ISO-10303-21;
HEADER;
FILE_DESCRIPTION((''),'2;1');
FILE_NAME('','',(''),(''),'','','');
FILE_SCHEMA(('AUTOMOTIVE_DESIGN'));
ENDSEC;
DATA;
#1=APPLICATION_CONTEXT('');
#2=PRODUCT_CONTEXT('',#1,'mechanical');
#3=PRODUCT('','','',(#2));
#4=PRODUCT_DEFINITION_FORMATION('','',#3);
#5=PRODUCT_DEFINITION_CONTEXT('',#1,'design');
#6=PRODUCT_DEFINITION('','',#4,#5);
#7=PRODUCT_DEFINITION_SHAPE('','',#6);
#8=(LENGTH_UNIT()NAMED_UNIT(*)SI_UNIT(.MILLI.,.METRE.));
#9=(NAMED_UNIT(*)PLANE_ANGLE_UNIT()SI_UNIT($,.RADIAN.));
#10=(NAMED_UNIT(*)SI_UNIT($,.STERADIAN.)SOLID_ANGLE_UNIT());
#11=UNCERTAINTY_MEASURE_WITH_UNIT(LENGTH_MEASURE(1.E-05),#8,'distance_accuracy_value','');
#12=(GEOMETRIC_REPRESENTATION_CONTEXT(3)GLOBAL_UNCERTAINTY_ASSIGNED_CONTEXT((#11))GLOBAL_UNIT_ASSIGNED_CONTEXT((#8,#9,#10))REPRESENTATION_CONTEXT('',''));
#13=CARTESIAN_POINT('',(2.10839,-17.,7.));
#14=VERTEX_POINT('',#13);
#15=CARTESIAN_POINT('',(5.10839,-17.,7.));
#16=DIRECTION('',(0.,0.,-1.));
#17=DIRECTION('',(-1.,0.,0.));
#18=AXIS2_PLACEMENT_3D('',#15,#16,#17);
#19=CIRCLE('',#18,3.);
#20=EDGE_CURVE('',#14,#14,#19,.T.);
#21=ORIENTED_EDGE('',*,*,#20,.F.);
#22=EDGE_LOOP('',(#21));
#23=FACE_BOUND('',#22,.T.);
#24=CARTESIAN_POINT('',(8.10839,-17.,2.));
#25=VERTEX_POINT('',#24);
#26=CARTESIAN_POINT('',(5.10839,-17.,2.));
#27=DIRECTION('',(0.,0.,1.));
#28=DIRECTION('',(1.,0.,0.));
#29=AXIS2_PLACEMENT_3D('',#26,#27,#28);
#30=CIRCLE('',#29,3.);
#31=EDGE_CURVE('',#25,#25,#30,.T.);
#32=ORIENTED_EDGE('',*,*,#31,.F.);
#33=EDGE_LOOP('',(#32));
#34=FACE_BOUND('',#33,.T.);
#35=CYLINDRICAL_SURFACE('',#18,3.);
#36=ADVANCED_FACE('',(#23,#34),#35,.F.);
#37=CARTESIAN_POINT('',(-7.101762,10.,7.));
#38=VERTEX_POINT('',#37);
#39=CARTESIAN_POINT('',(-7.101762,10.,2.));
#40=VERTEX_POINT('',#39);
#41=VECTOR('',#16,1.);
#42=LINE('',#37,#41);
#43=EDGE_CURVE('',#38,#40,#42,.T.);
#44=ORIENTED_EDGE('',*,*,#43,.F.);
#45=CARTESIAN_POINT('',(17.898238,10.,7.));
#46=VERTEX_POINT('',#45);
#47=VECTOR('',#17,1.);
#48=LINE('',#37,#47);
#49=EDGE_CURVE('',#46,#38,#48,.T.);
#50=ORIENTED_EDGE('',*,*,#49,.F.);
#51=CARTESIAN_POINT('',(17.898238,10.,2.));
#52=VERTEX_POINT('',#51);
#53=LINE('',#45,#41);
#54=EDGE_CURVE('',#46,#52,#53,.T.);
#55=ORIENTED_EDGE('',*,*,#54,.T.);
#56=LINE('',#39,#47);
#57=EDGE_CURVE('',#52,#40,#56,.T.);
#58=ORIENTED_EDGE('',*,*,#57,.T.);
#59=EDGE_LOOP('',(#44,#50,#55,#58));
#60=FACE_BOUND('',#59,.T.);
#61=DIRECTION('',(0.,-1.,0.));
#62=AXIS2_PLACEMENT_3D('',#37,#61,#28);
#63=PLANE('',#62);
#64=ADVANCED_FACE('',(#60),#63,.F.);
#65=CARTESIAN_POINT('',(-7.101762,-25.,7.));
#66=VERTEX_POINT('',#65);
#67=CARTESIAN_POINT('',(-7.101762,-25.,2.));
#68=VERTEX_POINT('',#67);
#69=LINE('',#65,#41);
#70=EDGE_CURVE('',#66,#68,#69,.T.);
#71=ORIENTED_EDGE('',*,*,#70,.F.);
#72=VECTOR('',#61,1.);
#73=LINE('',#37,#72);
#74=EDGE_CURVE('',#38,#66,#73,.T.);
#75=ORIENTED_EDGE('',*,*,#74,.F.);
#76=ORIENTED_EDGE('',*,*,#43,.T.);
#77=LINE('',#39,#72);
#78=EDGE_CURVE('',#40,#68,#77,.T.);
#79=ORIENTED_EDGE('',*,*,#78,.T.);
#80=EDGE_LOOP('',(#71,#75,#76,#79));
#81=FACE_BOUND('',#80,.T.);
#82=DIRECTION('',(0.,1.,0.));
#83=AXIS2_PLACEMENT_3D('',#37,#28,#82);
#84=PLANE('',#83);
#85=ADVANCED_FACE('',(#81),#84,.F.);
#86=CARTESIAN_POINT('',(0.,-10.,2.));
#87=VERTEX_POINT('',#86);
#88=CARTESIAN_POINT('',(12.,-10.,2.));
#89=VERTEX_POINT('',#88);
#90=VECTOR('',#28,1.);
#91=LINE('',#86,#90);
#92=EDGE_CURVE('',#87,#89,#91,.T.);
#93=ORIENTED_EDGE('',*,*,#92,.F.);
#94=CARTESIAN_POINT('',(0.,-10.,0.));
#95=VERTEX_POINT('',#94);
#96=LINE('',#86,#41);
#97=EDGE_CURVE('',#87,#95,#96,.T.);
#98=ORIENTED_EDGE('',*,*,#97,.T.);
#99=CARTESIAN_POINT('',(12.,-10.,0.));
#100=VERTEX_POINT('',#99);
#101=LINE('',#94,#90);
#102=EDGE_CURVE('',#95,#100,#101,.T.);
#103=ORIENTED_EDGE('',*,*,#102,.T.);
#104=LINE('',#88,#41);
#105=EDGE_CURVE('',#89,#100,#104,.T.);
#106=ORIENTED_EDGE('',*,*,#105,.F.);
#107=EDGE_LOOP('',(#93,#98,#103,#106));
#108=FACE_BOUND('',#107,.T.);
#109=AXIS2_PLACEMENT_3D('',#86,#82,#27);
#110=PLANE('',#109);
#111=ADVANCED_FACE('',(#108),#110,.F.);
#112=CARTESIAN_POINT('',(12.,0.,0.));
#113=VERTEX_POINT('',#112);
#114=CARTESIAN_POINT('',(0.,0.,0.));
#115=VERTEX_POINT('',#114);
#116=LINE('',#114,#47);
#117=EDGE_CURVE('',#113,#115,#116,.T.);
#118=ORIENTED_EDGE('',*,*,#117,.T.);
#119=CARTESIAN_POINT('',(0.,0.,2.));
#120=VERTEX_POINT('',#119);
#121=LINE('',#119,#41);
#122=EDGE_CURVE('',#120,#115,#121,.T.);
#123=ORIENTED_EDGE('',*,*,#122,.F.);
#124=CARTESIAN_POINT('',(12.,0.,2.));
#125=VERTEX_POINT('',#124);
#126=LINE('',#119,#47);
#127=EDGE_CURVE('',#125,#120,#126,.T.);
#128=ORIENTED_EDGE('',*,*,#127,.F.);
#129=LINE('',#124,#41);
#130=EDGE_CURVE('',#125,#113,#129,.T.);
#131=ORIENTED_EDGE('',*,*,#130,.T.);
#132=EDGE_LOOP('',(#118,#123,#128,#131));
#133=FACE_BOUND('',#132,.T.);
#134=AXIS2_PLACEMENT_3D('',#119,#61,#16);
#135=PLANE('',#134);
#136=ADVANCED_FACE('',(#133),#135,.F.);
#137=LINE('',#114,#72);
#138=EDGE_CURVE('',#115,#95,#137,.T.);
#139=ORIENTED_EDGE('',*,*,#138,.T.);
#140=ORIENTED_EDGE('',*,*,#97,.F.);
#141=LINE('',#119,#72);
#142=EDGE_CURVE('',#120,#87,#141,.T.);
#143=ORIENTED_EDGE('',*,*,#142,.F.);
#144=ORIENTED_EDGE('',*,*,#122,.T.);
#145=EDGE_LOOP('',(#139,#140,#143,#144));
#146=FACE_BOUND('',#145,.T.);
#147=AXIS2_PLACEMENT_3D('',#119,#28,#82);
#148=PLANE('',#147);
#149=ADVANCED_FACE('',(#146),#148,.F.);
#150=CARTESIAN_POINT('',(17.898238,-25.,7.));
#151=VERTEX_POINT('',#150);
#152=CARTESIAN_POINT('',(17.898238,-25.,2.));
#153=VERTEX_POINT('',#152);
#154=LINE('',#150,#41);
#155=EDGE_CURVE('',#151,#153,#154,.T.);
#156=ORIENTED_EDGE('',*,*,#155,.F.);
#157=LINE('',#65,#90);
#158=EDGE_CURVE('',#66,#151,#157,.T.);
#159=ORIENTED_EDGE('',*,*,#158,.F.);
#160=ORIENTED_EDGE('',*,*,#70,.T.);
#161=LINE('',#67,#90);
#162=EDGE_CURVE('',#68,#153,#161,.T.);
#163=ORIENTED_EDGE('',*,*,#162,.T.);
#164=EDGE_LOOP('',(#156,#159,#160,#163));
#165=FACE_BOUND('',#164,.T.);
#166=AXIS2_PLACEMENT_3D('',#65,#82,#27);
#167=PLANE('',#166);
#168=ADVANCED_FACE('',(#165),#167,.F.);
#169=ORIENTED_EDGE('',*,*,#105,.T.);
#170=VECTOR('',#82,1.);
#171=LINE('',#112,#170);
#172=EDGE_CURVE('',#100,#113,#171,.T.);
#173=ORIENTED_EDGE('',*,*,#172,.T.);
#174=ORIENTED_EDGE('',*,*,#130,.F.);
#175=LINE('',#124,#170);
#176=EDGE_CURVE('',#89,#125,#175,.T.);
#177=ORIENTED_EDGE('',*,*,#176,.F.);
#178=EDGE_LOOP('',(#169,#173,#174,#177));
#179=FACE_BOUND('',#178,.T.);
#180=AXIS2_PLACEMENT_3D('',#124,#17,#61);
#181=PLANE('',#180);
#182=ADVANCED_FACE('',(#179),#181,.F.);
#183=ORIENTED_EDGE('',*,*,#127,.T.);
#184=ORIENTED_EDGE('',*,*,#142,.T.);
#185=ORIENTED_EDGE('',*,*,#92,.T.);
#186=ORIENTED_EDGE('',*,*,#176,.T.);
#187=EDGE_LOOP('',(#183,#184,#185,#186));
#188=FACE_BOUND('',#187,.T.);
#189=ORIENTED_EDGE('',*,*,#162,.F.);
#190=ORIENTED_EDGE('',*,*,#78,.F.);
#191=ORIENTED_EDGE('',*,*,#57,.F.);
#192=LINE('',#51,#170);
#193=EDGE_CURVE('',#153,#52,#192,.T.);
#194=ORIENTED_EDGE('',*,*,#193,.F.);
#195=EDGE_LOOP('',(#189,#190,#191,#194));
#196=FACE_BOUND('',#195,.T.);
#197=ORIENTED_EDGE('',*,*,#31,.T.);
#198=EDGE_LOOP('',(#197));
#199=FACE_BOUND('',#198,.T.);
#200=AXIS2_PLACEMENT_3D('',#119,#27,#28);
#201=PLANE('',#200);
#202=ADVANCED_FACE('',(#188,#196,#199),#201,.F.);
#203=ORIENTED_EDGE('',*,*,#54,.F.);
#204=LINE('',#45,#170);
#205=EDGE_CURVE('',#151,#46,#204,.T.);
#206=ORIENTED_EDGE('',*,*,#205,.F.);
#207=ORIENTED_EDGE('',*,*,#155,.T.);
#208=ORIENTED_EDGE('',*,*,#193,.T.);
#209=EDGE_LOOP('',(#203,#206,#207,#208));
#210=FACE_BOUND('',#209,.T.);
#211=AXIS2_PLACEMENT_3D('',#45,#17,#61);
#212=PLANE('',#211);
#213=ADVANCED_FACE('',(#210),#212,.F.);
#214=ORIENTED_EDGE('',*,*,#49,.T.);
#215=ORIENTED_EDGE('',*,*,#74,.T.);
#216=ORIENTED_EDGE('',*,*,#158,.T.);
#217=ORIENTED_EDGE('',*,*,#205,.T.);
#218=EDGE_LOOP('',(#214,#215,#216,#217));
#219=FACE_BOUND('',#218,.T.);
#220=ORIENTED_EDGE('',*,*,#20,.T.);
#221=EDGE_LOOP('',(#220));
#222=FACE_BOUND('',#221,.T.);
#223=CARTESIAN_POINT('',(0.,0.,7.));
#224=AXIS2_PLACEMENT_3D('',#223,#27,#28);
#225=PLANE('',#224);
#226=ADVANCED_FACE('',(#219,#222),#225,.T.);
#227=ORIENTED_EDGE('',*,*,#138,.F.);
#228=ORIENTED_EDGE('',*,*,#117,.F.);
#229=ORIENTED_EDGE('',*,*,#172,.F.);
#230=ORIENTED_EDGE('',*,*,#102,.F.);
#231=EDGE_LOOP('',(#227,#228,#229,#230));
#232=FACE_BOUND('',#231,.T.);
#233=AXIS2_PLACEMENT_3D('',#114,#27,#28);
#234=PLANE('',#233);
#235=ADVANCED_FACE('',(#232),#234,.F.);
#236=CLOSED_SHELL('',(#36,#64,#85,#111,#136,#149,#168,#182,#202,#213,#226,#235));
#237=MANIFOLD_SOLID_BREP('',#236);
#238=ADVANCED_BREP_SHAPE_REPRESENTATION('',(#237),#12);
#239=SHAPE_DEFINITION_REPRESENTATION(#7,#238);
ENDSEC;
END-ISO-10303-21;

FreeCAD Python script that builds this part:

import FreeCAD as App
import Part
import Sketcher
from FreeCAD import Vector
Q = App.Units.Quantity


def add_polygon(sketch, points):
    """Adds a closed chain of lines whose ends are joined by coincident constraints."""
    first, n = sketch.GeometryCount, len(points)
    for a, b in zip(points, points[1:] + points[:1]):
        sketch.addGeometry(Part.LineSegment(App.Vector(*a, 0), App.Vector(*b, 0)), False)
    for i in range(n):
        sketch.addConstraint(Sketcher.Constraint("Coincident", first + i, 2, first + (i + 1) % n, 1))

doc = App.newDocument("Part")
body = doc.addObject("PartDesign::Body", "Body")

# Sketch on XY plane
sketch1 = body.newObject("Sketcher::SketchObject", "Sketch")
sketch1.AttachmentSupport = (doc.getObject("XY_Plane"), [""])
sketch1.MapMode = "FlatFace"
add_polygon(sketch1, [(0, 0), (0, -10), (12, -10), (12, 0)])  # lines 0-3
sketch1.addConstraint(Sketcher.Constraint("Vertical", 0))
sketch1.addConstraint(Sketcher.Constraint("Horizontal", 1))
sketch1.addConstraint(Sketcher.Constraint("Vertical", 2))
sketch1.addConstraint(Sketcher.Constraint("Horizontal", 3))
sketch1.addConstraint(Sketcher.Constraint("Coincident", 3, 2, -1, 1))
sketch1.addConstraint(Sketcher.Constraint("DistanceX", 1, 1, 1, 2, Q("12 mm")))
sketch1.addConstraint(Sketcher.Constraint("DistanceY", 0, 2, 0, 1, Q("10 mm")))
pad1 = body.newObject("PartDesign::Pad", "Pad")
pad1.Profile = sketch1
pad1.Length = 2

# Sketch on XY plane
sketch2 = body.newObject("Sketcher::SketchObject", "Sketch001")
sketch2.AttachmentSupport = (doc.getObject("XY_Plane"), [""])
sketch2.MapMode = "FlatFace"
sketch2.AttachmentOffset = App.Placement(Vector(0, 0, 2), App.Rotation())
add_polygon(sketch2, [(-7.101762, 10), (-7.101762, -25), (17.898238, -25), (17.898238, 10)])  # lines 0-3
sketch2.addConstraint(Sketcher.Constraint("Vertical", 0))
sketch2.addConstraint(Sketcher.Constraint("Horizontal", 1))
sketch2.addConstraint(Sketcher.Constraint("Vertical", 2))
sketch2.addConstraint(Sketcher.Constraint("Horizontal", 3))
sketch2.addConstraint(Sketcher.Constraint("DistanceX", 1, 1, 1, 2, Q("25 mm")))
sketch2.addConstraint(Sketcher.Constraint("DistanceY", 0, 2, 0, 1, Q("35 mm")))
sketch2.addConstraint(Sketcher.Constraint("DistanceY", 0, 2, -1, 1, Q("25 mm")))
sketch2.addConstraint(Sketcher.Constraint("DistanceX", 0, 2, -1, 1, Q("7.101762 mm")))
pad2 = body.newObject("PartDesign::Pad", "Pad001")
pad2.Profile = sketch2
pad2.Length = 5

# Sketch on XY plane
sketch3 = body.newObject("Sketcher::SketchObject", "Sketch002")
sketch3.AttachmentSupport = (doc.getObject("XY_Plane"), [""])
sketch3.MapMode = "FlatFace"
sketch3.addGeometry(Part.Circle(Vector(5.10839, -17, 0), Vector(0, 0, 1), 3), False)
sketch3.addConstraint(Sketcher.Constraint("Diameter", 0, Q("6 mm")))
sketch3.addConstraint(Sketcher.Constraint("DistanceY", 0, 3, -1, 1, Q("17 mm")))
sketch3.addConstraint(Sketcher.Constraint("DistanceX", -1, 1, 0, 3, Q("5.10839 mm")))
pocket1 = body.newObject("PartDesign::Pocket", "Pocket")
pocket1.Profile = sketch3
pocket1.Type = "ThroughAll"
pocket1.Midplane = True

doc.recompute()
